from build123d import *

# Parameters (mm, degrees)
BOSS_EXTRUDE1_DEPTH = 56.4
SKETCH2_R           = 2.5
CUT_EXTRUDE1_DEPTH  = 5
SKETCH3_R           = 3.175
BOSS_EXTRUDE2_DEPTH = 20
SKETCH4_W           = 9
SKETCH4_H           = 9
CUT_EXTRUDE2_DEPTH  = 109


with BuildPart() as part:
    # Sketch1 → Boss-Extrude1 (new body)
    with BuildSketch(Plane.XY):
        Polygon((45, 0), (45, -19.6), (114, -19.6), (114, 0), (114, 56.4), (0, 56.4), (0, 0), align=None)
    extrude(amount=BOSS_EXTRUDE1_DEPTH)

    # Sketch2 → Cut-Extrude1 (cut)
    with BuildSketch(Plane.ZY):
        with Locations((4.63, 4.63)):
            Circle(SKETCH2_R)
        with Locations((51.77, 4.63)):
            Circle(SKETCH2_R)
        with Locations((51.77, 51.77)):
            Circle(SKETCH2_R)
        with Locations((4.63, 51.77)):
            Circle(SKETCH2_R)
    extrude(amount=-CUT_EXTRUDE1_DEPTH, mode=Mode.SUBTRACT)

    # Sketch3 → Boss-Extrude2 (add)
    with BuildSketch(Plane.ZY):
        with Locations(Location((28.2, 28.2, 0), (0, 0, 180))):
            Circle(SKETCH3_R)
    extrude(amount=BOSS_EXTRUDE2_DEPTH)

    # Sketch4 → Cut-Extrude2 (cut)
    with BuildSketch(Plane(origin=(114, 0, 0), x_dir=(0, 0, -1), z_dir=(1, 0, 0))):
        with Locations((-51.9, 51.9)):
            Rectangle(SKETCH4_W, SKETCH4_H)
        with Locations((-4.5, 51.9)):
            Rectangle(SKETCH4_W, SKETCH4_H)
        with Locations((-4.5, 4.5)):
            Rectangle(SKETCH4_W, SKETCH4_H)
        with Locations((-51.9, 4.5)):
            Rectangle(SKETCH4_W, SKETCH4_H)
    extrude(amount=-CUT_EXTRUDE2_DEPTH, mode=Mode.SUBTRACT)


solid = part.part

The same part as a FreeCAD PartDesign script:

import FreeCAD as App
import Part
import Sketcher
Q = App.Units.Quantity

doc = App.newDocument("Part")
params = doc.addObject("Spreadsheet::Sheet", "Params")
for row, (alias, value) in enumerate([
    ("sketch1_width", "69 mm"),
    ("sketch1_width2", "114 mm"),
    ("sketch1_height", "76 mm"),
    ("sketch1_height2", "19.6 mm"),
    ("pad1_length", "56.4 mm"),
    ("sketch2_diameter", "5 mm"),
    ("pocket1_length", "5 mm"),
    ("sketch3_diameter", "6.35 mm"),
    ("pad2_length", "20 mm"),
    ("sketch4_width", "9 mm"),
    ("pocket2_length", "109 mm"),
], start=1):
    params.set(f"A{row}", alias)
    params.set(f"B{row}", "=" + value)
    params.setAlias(f"B{row}", alias)

body = doc.addObject("PartDesign::Body", "Body")

sketch1 = body.newObject("Sketcher::SketchObject", "Sketch")
sketch1.AttachmentSupport = (doc.getObject("XY_Plane"), [""])
sketch1.MapMode = "FlatFace"
sketch1.addGeometry([
    Part.LineSegment(App.Vector(45, 0, 0), App.Vector(45, -19.6, 0)),
    Part.LineSegment(App.Vector(45, -19.6, 0), App.Vector(114, -19.6, 0)),
    Part.LineSegment(App.Vector(114, -19.6, 0), App.Vector(114, 56.4, 0)),
    Part.LineSegment(App.Vector(114, 56.4, 0), App.Vector(0, 56.4, 0)),
    Part.LineSegment(App.Vector(0, 56.4, 0), App.Vector(0, 0, 0)),
    Part.LineSegment(App.Vector(0, 0, 0), App.Vector(45, 0, 0)),
], False)
sketch1.addConstraint([
    Sketcher.Constraint("Coincident", 0, 2, 1, 1),
    Sketcher.Constraint("Coincident", 1, 2, 2, 1),
    Sketcher.Constraint("Coincident", 2, 2, 3, 1),
    Sketcher.Constraint("Coincident", 3, 2, 4, 1),
    Sketcher.Constraint("Coincident", 4, 2, 5, 1),
    Sketcher.Constraint("Coincident", 5, 2, 0, 1),
    Sketcher.Constraint("Vertical", 0),
    Sketcher.Constraint("Horizontal", 1),
    Sketcher.Constraint("Vertical", 2),
    Sketcher.Constraint("Horizontal", 3),
    Sketcher.Constraint("Vertical", 4),
    Sketcher.Constraint("Horizontal", 5),
    Sketcher.Constraint("Coincident", 4, 2, -1, 1),
    Sketcher.Constraint("DistanceX", 1, 1, 1, 2, Q("69 mm")),
    Sketcher.Constraint("DistanceX", 3, 2, 3, 1, Q("114 mm")),
    Sketcher.Constraint("DistanceY", 2, 1, 2, 2, Q("76 mm")),
    Sketcher.Constraint("DistanceY", 0, 2, 0, 1, Q("19.6 mm")),
])
sketch1.setExpression("Constraints[13]", "Params.sketch1_width")
sketch1.setExpression("Constraints[14]", "Params.sketch1_width2")
sketch1.setExpression("Constraints[15]", "Params.sketch1_height")
sketch1.setExpression("Constraints[16]", "Params.sketch1_height2")
pad1 = body.newObject("PartDesign::Pad", "Pad")
pad1.Profile = sketch1
pad1.setExpression("Length", "Params.pad1_length")

sketch2 = body.newObject("Sketcher::SketchObject", "Sketch001")
sketch2.AttachmentSupport = (doc.getObject("YZ_Plane"), [""])
sketch2.MapMode = "FlatFace"
sketch2.addGeometry([
    Part.Circle(App.Vector(4.63, 4.63, 0), App.Vector(0, 0, 1), 2.5),
    Part.Circle(App.Vector(4.63, 51.77, 0), App.Vector(0, 0, 1), 2.5),
    Part.Circle(App.Vector(51.77, 51.77, 0), App.Vector(0, 0, 1), 2.5),
    Part.Circle(App.Vector(51.77, 4.63, 0), App.Vector(0, 0, 1), 2.5),
], False)
sketch2.addConstraint([
    Sketcher.Constraint("Equal", 0, 1),
    Sketcher.Constraint("Equal", 1, 2),
    Sketcher.Constraint("Equal", 2, 3),
    Sketcher.Constraint("Horizontal", 1, 3, 2, 3),
    Sketcher.Constraint("Horizontal", 0, 3, 3, 3),
    Sketcher.Constraint("Vertical", 0, 3, 1, 3),
    Sketcher.Constraint("Vertical", 2, 3, 3, 3),
    Sketcher.Constraint("Diameter", 0, Q("5 mm")),
    Sketcher.Constraint("DistanceX", -1, 1, 0, 3, Q("4.63 mm")),
    Sketcher.Constraint("DistanceY", -1, 1, 0, 3, Q("4.63 mm")),
    Sketcher.Constraint("DistanceY", -1, 1, 1, 3, Q("51.77 mm")),
    Sketcher.Constraint("DistanceX", -1, 1, 2, 3, Q("51.77 mm")),
])
sketch2.setExpression("Constraints[7]", "Params.sketch2_diameter")
pocket1 = body.newObject("PartDesign::Pocket", "Pocket")
pocket1.Profile = sketch2
pocket1.setExpression("Length", "Params.pocket1_length")
pocket1.Reversed = True

sketch3 = body.newObject("Sketcher::SketchObject", "Sketch002")
sketch3.AttachmentSupport = (doc.getObject("YZ_Plane"), [""])
sketch3.MapMode = "FlatFace"
sketch3.addGeometry(Part.Circle(App.Vector(28.2, 28.2, 0), App.Vector(0, 0, 1), 3.175), False)
sketch3.addConstraint([
    Sketcher.Constraint("Diameter", 0, Q("6.35 mm")),
    Sketcher.Constraint("DistanceX", -1, 1, 0, 3, Q("28.2 mm")),
    Sketcher.Constraint("DistanceY", -1, 1, 0, 3, Q("28.2 mm")),
])
sketch3.setExpression("Constraints[0]", "Params.sketch3_diameter")
pad2 = body.newObject("PartDesign::Pad", "Pad001")
pad2.Profile = sketch3
pad2.setExpression("Length", "Params.pad2_length")
pad2.Reversed = True

sketch4 = body.newObject("Sketcher::SketchObject", "Sketch003")
sketch4.AttachmentSupport = (doc.getObject("YZ_Plane"), [""])
sketch4.MapMode = "FlatFace"
sketch4.AttachmentOffset = App.Placement(App.Vector(0, 0, 114), App.Rotation())
sketch4.addGeometry([
    Part.LineSegment(App.Vector(56.4, 56.4, 0), App.Vector(47.4, 56.4, 0)),
    Part.LineSegment(App.Vector(47.4, 56.4, 0), App.Vector(47.4, 47.4, 0)),
    Part.LineSegment(App.Vector(47.4, 47.4, 0), App.Vector(56.4, 47.4, 0)),
    Part.LineSegment(App.Vector(56.4, 47.4, 0), App.Vector(56.4, 56.4, 0)),
    Part.LineSegment(App.Vector(56.4, 9, 0), App.Vector(47.4, 9, 0)),
    Part.LineSegment(App.Vector(47.4, 9, 0), App.Vector(47.4, 0, 0)),
    Part.LineSegment(App.Vector(47.4, 0, 0), App.Vector(56.4, 0, 0)),
    Part.LineSegment(App.Vector(56.4, 0, 0), App.Vector(56.4, 9, 0)),
    Part.LineSegment(App.Vector(9, 9, 0), App.Vector(0, 9, 0)),
    Part.LineSegment(App.Vector(0, 9, 0), App.Vector(0, 0, 0)),
    Part.LineSegment(App.Vector(0, 0, 0), App.Vector(9, 0, 0)),
    Part.LineSegment(App.Vector(9, 0, 0), App.Vector(9, 9, 0)),
    Part.LineSegment(App.Vector(9, 56.4, 0), App.Vector(0, 56.4, 0)),
    Part.LineSegment(App.Vector(0, 56.4, 0), App.Vector(0, 47.4, 0)),
    Part.LineSegment(App.Vector(0, 47.4, 0), App.Vector(9, 47.4, 0)),
    Part.LineSegment(App.Vector(9, 47.4, 0), App.Vector(9, 56.4, 0)),
], False)
sketch4.addConstraint([
    Sketcher.Constraint("Coincident", 0, 2, 1, 1),
    Sketcher.Constraint("Coincident", 1, 2, 2, 1),
    Sketcher.Constraint("Coincident", 2, 2, 3, 1),
    Sketcher.Constraint("Coincident", 3, 2, 0, 1),
    Sketcher.Constraint("Coincident", 4, 2, 5, 1),
    Sketcher.Constraint("Coincident", 5, 2, 6, 1),
    Sketcher.Constraint("Coincident", 6, 2, 7, 1),
    Sketcher.Constraint("Coincident", 7, 2, 4, 1),
    Sketcher.Constraint("Coincident", 8, 2, 9, 1),
    Sketcher.Constraint("Coincident", 9, 2, 10, 1),
    Sketcher.Constraint("Coincident", 10, 2, 11, 1),
    Sketcher.Constraint("Coincident", 11, 2, 8, 1),
    Sketcher.Constraint("Coincident", 12, 2, 13, 1),
    Sketcher.Constraint("Coincident", 13, 2, 14, 1),
    Sketcher.Constraint("Coincident", 14, 2, 15, 1),
    Sketcher.Constraint("Coincident", 15, 2, 12, 1),
    Sketcher.Constraint("Horizontal", 0),
    Sketcher.Constraint("Vertical", 1),
    Sketcher.Constraint("Horizontal", 2),
    Sketcher.Constraint("Vertical", 3),
    Sketcher.Constraint("Horizontal", 4),
    Sketcher.Constraint("Vertical", 5),
    Sketcher.Constraint("Horizontal", 6),
    Sketcher.Constraint("Vertical", 7),
    Sketcher.Constraint("Horizontal", 8),
    Sketcher.Constraint("Vertical", 9),
    Sketcher.Constraint("Horizontal", 10),
    Sketcher.Constraint("Vertical", 11),
    Sketcher.Constraint("Horizontal", 12),
    Sketcher.Constraint("Vertical", 13),
    Sketcher.Constraint("Horizontal", 14),
    Sketcher.Constraint("Vertical", 15),
    Sketcher.Constraint("Coincident", 9, 2, -1, 1),
    Sketcher.Constraint("PointOnObject", 5, 2, -1),
    Sketcher.Constraint("PointOnObject", 12, 2, -2),
    Sketcher.Constraint("Horizontal", 7, 2, 8, 2),
    Sketcher.Constraint("Horizontal", 3, 2, 12, 2),
    Sketcher.Constraint("Horizontal", 2, 2, 13, 2),
    Sketcher.Constraint("Vertical", 1, 2, 4, 2),
    Sketcher.Constraint("Vertical", 3, 2, 6, 2),
    Sketcher.Constraint("Vertical", 11, 2, 14, 2),
    Sketcher.Constraint("Equal", 6, 8),
    Sketcher.Constraint("Equal", 14, 1),
    Sketcher.Constraint("Equal", 3, 5),
    Sketcher.Constraint("DistanceX", 0, 2, 0, 1, Q("9 mm")),
    Sketcher.Constraint("DistanceX", -1, 1, 0, 2, Q("47.4 mm")),
    Sketcher.Constraint("DistanceY", -1, 1, 0, 2, Q("56.4 mm")),
])
sketch4.setExpression("Constraints[44]", "Params.sketch4_width")
pocket2 = body.newObject("PartDesign::Pocket", "Pocket001")
pocket2.Profile = sketch4
pocket2.setExpression("Length", "Params.pocket2_length")

doc.recompute()
